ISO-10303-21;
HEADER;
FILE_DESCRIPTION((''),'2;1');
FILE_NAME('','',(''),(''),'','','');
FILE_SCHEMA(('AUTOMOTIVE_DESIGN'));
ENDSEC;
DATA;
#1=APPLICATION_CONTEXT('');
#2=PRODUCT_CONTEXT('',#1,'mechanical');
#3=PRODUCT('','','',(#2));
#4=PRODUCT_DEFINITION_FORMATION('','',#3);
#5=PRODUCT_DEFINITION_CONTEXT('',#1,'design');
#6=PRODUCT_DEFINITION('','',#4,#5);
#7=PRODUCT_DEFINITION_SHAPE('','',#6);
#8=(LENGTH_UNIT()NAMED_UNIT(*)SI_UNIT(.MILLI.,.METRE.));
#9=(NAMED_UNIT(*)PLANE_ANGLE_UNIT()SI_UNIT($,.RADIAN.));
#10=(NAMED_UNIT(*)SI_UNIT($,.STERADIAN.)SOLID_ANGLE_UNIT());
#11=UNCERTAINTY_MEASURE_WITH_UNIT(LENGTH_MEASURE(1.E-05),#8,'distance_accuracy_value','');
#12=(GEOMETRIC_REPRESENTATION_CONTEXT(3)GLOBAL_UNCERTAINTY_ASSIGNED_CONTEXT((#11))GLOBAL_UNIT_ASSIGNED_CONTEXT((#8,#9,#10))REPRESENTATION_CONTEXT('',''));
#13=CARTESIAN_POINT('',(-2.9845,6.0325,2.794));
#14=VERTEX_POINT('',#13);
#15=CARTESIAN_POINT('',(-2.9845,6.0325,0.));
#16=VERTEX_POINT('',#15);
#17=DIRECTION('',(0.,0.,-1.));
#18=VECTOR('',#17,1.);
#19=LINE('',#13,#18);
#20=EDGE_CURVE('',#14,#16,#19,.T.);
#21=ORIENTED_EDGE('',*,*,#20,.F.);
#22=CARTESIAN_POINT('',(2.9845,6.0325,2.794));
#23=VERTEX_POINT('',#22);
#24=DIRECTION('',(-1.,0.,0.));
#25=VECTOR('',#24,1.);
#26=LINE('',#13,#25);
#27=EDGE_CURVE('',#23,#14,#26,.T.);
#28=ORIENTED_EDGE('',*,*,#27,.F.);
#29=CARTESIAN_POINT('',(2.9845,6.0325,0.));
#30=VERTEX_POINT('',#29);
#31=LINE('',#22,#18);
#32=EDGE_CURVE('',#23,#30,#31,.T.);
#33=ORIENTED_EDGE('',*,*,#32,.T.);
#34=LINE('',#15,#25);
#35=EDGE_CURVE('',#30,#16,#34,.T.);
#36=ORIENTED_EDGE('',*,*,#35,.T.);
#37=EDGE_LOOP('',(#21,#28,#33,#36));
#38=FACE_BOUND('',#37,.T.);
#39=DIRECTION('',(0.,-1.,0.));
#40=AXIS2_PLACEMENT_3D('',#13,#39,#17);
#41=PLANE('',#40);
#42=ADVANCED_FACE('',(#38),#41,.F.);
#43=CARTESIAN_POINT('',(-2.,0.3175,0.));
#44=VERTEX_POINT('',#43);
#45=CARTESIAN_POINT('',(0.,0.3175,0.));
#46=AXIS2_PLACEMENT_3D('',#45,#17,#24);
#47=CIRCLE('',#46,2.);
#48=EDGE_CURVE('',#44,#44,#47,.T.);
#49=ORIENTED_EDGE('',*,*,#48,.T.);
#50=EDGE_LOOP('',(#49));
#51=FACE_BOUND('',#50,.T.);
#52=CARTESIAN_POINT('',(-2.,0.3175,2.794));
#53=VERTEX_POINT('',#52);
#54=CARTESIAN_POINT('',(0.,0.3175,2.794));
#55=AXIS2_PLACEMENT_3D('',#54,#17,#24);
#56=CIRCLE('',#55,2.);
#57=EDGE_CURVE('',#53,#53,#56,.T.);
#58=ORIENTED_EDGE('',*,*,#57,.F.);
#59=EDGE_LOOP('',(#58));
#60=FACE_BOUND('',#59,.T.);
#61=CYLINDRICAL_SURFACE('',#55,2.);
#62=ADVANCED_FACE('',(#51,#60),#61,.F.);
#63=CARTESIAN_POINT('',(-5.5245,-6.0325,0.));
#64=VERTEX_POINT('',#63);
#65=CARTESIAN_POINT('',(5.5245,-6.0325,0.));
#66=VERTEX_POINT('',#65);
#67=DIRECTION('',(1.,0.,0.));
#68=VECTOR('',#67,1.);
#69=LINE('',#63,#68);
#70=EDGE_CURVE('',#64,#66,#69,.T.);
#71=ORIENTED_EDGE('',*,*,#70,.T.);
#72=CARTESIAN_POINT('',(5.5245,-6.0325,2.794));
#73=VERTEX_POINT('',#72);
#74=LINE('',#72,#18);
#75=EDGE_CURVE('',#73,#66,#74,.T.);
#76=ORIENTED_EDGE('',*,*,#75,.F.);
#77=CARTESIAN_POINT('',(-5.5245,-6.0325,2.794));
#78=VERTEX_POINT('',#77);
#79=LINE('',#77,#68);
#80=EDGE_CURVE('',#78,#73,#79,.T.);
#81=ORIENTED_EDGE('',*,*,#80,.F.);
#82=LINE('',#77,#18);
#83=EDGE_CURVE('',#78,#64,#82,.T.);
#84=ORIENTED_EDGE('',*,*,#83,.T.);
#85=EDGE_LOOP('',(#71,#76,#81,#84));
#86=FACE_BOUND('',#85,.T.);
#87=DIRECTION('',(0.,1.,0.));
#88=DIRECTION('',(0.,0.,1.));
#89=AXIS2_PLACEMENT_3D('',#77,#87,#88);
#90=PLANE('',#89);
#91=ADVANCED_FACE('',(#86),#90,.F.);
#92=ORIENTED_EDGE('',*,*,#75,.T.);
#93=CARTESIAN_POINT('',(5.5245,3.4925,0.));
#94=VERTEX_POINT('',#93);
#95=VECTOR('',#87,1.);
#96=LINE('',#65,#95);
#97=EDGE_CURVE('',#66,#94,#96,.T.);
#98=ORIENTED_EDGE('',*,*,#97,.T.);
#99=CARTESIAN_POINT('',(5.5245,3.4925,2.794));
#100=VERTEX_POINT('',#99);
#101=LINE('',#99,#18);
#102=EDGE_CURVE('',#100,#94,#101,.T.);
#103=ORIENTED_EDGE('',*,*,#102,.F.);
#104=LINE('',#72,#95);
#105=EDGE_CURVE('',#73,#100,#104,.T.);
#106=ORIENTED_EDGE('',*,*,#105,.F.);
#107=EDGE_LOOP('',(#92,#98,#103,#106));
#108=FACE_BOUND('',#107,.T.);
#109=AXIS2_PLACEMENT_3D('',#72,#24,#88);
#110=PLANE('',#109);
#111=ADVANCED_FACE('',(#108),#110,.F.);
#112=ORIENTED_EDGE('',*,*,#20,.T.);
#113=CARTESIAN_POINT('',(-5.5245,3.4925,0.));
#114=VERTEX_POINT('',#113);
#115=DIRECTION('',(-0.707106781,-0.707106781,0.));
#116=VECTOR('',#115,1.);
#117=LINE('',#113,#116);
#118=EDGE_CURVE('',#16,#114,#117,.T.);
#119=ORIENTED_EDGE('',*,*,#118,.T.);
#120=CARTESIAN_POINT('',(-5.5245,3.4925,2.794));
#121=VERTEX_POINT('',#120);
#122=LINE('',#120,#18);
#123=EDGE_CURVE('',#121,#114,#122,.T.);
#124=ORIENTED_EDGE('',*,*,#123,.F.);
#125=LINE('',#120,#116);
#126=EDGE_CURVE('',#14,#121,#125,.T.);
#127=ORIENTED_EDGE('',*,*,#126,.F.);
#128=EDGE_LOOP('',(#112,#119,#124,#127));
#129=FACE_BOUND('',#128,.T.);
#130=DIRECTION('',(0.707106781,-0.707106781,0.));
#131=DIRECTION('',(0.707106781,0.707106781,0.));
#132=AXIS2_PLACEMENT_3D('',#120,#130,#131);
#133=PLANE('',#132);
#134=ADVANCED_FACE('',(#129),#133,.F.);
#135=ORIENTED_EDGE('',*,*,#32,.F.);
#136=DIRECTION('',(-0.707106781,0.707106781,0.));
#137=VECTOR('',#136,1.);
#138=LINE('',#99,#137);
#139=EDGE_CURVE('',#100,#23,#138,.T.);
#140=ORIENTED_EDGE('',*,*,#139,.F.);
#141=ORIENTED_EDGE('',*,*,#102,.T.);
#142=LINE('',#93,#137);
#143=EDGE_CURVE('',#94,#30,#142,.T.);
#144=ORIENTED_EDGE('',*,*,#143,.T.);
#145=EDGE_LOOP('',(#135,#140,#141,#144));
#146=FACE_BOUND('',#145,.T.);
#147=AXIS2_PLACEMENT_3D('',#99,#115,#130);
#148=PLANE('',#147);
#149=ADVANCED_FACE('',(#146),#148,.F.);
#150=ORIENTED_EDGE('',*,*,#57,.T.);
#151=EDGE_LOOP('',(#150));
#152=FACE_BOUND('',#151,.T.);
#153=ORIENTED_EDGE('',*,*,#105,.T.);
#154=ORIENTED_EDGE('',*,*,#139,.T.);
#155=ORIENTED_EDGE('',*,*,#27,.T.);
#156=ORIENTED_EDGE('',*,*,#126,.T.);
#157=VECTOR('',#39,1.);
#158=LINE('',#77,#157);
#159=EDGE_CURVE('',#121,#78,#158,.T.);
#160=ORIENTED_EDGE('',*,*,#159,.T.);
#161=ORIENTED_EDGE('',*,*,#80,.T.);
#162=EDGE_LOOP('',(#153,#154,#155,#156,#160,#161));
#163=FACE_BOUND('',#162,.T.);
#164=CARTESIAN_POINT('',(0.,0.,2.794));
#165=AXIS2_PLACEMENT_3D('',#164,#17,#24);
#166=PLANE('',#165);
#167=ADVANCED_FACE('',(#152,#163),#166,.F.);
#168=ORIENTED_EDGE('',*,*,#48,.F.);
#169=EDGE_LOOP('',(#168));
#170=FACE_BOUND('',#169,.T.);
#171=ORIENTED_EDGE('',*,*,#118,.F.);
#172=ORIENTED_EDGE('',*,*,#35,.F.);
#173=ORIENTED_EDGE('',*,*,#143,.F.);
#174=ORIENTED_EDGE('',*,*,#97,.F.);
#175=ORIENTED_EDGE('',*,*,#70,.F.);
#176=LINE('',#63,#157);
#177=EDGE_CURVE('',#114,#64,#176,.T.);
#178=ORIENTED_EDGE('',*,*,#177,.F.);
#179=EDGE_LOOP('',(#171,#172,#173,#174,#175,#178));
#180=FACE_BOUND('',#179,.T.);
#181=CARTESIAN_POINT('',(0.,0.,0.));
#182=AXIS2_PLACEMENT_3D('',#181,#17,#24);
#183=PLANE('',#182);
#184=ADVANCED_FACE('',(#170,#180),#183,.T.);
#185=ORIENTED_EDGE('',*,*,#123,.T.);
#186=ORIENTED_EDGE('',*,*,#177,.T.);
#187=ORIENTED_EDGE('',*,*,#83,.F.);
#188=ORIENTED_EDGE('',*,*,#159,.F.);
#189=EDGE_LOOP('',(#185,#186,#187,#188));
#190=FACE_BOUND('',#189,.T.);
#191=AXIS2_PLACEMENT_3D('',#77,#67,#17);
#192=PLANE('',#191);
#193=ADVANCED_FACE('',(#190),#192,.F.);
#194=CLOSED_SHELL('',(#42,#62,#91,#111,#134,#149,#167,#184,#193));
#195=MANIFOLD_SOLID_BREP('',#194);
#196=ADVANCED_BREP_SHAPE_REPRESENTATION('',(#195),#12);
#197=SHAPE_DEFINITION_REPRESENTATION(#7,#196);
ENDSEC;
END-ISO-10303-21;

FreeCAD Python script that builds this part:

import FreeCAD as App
import Part
import Sketcher
Q = App.Units.Quantity

doc = App.newDocument("Part")
body = doc.addObject("PartDesign::Body", "Body")

# Sketch on XY plane
sketch1 = body.newObject("Sketcher::SketchObject", "Sketch")
sketch1.AttachmentSupport = (doc.getObject("XY_Plane"), [""])
sketch1.MapMode = "FlatFace"
sketch1.addGeometry([
    Part.LineSegment(App.Vector(-2.9845, 6.0325, 0), App.Vector(-5.5245, 3.4925, 0)),  # 0
    Part.LineSegment(App.Vector(-5.5245, 3.4925, 0), App.Vector(-5.5245, -6.0325, 0)),  # 1
    Part.LineSegment(App.Vector(-5.5245, -6.0325, 0), App.Vector(5.5245, -6.0325, 0)),  # 2
    Part.LineSegment(App.Vector(5.5245, -6.0325, 0), App.Vector(5.5245, 3.4925, 0)),  # 3
    Part.LineSegment(App.Vector(5.5245, 3.4925, 0), App.Vector(2.9845, 6.0325, 0)),  # 4
    Part.LineSegment(App.Vector(2.9845, 6.0325, 0), App.Vector(-2.9845, 6.0325, 0)),  # 5
], False)
sketch1.addConstraint([
    Sketcher.Constraint("Coincident", 0, 2, 1, 1),
    Sketcher.Constraint("Coincident", 1, 2, 2, 1),
    Sketcher.Constraint("Coincident", 2, 2, 3, 1),
    Sketcher.Constraint("Coincident", 3, 2, 4, 1),
    Sketcher.Constraint("Coincident", 4, 2, 5, 1),
    Sketcher.Constraint("Coincident", 5, 2, 0, 1),
    Sketcher.Constraint("Vertical", 1),
    Sketcher.Constraint("Horizontal", 2),
    Sketcher.Constraint("Vertical", 3),
    Sketcher.Constraint("Horizontal", 5),
    Sketcher.Constraint("Symmetric", 0, 2, 3, 2, -2),
    Sketcher.Constraint("Perpendicular", 0, 4),
    Sketcher.Constraint("Equal", 0, 4),
    Sketcher.Constraint("DistanceX", 4, 2, 3, 2, Q("0.1 in")),
    Sketcher.Constraint("DistanceX", 2, 1, 2, 2, Q("0.435 in")),
    Sketcher.Constraint("DistanceY", 1, 2, 1, 1, Q("0.375 in")),
    Sketcher.Constraint("DistanceY", -1, 1, 0, 2, Q("0.1375 in")),
])
pad1 = body.newObject("PartDesign::Pad", "Pad")
pad1.Profile = sketch1
pad1.Length = Q("0.11 in")

# Sketch on XY plane
sketch2 = body.newObject("Sketcher::SketchObject", "Sketch001")
sketch2.AttachmentSupport = (doc.getObject("XY_Plane"), [""])
sketch2.MapMode = "FlatFace"
sketch2.addGeometry(Part.Circle(App.Vector(0, 0.3175, 0), App.Vector(0, 0, 1), 2), False)
sketch2.addConstraint([
    Sketcher.Constraint("PointOnObject", 0, 3, -2),
    Sketcher.Constraint("Diameter", 0, Q("4 mm")),
    Sketcher.Constraint("DistanceY", -1, 1, 0, 3, Q("0.0125 in")),
])
pocket1 = body.newObject("PartDesign::Pocket", "Pocket")
pocket1.Profile = sketch2
pocket1.Length = Q("0.11 in")
pocket1.Reversed = True

doc.recompute()
